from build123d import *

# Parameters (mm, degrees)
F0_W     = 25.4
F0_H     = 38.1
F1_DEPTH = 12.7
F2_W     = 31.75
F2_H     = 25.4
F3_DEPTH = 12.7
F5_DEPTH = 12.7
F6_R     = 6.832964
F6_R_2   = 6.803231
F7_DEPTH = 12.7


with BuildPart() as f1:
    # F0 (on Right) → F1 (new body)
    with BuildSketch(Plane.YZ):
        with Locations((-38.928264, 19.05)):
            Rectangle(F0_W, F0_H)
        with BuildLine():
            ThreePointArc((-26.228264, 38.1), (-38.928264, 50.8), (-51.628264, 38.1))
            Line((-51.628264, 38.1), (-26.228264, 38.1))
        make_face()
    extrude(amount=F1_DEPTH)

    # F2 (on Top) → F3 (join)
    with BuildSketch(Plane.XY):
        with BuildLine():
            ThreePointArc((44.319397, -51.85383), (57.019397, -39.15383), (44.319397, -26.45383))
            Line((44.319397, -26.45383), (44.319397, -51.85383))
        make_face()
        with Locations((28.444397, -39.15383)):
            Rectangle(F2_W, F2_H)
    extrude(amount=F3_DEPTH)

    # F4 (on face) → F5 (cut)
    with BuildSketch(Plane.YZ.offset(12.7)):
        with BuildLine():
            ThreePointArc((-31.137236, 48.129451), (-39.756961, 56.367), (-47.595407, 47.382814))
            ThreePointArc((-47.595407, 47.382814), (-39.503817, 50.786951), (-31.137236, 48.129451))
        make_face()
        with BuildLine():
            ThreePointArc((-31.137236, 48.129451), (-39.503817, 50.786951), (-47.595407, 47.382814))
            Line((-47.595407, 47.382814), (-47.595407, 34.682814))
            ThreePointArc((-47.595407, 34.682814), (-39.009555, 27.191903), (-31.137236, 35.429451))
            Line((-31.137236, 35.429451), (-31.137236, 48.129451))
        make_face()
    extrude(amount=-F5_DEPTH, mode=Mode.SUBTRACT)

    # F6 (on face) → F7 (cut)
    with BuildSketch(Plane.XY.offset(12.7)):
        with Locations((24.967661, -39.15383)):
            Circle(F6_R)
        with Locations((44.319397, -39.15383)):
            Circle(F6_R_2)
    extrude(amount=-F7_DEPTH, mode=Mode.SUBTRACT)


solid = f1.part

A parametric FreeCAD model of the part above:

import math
import FreeCAD as App
import Part
import Sketcher
from FreeCAD import Vector
Q = App.Units.Quantity

doc = App.newDocument("Part")
body = doc.addObject("PartDesign::Body", "Body")

# Sketch on YZ plane
sketch1 = doc.addObject("Sketcher::SketchObject", "Sketch")
body.addObject(sketch1)
sketch1.AttachmentSupport = (doc.YZ_Plane, [""])
sketch1.MapMode = "FlatFace"
sketch1.addGeometry([
    Part.LineSegment(Vector(-52, 38, 0), Vector(-52, 0, 0)),
    Part.LineSegment(Vector(-52, 0, 0), Vector(-26, 0, 0)),
    Part.LineSegment(Vector(-26, 0, 0), Vector(-26, 38, 0)),
    Part.ArcOfCircle(Part.Circle(Vector(-39, 38, 0), Vector(0, 0, 1), 13), math.radians(0), math.radians(180)),
], False)
sketch1.addConstraint([
    Sketcher.Constraint("Coincident", 0, 2, 1, 1),
    Sketcher.Constraint("Coincident", 1, 2, 2, 1),
    Sketcher.Constraint("Tangent", 2, 2, 3, 1),
    Sketcher.Constraint("Tangent", 3, 2, 0, 1),
    Sketcher.Constraint("Vertical", 0),
    Sketcher.Constraint("Horizontal", 1),
    Sketcher.Constraint("Vertical", 2),
    Sketcher.Constraint("PointOnObject", 0, 2, -1),
    Sketcher.Constraint("Radius", 3, Q("0.5 in")),
    Sketcher.Constraint("DistanceY", 0, 2, 0, 1, Q("1.5 in")),
    Sketcher.Constraint("DistanceX", 3, 3, -1, 1, 38.928264),
])
pad1 = doc.addObject("PartDesign::Pad", "Pad")
body.addObject(pad1)
pad1.Profile = sketch1
pad1.Length = Q("0.5 in")

# Sketch on XY plane
sketch2 = doc.addObject("Sketcher::SketchObject", "Sketch001")
body.addObject(sketch2)
sketch2.AttachmentSupport = (doc.XY_Plane, [""])
sketch2.MapMode = "FlatFace"
sketch2.addGeometry([
    Part.ArcOfCircle(Part.Circle(Vector(44, -39, 0), Vector(0, 0, 1), 13), math.radians(-90), math.radians(90)),
    Part.LineSegment(Vector(44, -26, 0), Vector(13, -26, 0)),
    Part.LineSegment(Vector(13, -26, 0), Vector(13, -52, 0)),
    Part.LineSegment(Vector(13, -52, 0), Vector(44, -52, 0)),
], False)
sketch2.addConstraint([
    Sketcher.Constraint("Tangent", 0, 2, 1, 1),
    Sketcher.Constraint("Coincident", 1, 2, 2, 1),
    Sketcher.Constraint("Coincident", 2, 2, 3, 1),
    Sketcher.Constraint("Tangent", 3, 2, 0, 1),
    Sketcher.Constraint("Horizontal", 1),
    Sketcher.Constraint("Vertical", 2),
    Sketcher.Constraint("Horizontal", 3),
    Sketcher.Constraint("Radius", 0, Q("0.5 in")),
    Sketcher.Constraint("DistanceX", 1, 2, 1, 1, Q("1.25 in")),
    Sketcher.Constraint("DistanceY", 0, 3, -1, 1, 39.15383),
    Sketcher.Constraint("DistanceX", -1, 1, 0, 3, 44.319397),
])
pad2 = doc.addObject("PartDesign::Pad", "Pad001")
body.addObject(pad2)
pad2.Profile = sketch2
pad2.Length = Q("0.5 in")

# Sketch on YZ plane
sketch3 = doc.addObject("Sketcher::SketchObject", "Sketch002")
body.addObject(sketch3)
sketch3.AttachmentSupport = (doc.YZ_Plane, [""])
sketch3.MapMode = "FlatFace"
sketch3.AttachmentOffset = App.Placement(Vector(0, 0, 0.5 * 25.4), App.Rotation())
sketch3.addGeometry([
    Part.ArcOfCircle(Part.Circle(Vector(-39, 48, 0), Vector(0, 0, 1), 8), math.radians(0), math.radians(185)),
    Part.LineSegment(Vector(-48, 47, 0), Vector(-48, 35, 0)),
    Part.ArcOfCircle(Part.Circle(Vector(-39, 35, 0), Vector(0, 0, 1), 8), math.radians(-175), math.radians(0)),
    Part.LineSegment(Vector(-31, 35, 0), Vector(-31, 48, 0)),
], False)
sketch3.addConstraint([
    Sketcher.Constraint("Coincident", 0, 2, 1, 1),
    Sketcher.Constraint("Coincident", 1, 2, 2, 1),
    Sketcher.Constraint("Tangent", 2, 2, 3, 1),
    Sketcher.Constraint("Tangent", 3, 2, 0, 1),
    Sketcher.Constraint("Vertical", 1),
    Sketcher.Constraint("Vertical", 3),
    Sketcher.Constraint("Equal", 0, 2),
    Sketcher.Constraint("DistanceY", 1, 2, 1, 1, Q("0.5 in")),
    Sketcher.Constraint("Radius", 0, 8.246021),
    Sketcher.Constraint("DistanceY", -1, 1, 0, 3, 48.129451),
    Sketcher.Constraint("DistanceX", 0, 2, 0, 3, 8.21215),
    Sketcher.Constraint("DistanceX", 0, 3, -1, 1, 39.383257),
])
pocket1 = doc.addObject("PartDesign::Pocket", "Pocket")
body.addObject(pocket1)
pocket1.Profile = sketch3
pocket1.Length = Q("0.5 in")

# Sketch on XY plane
sketch4 = doc.addObject("Sketcher::SketchObject", "Sketch003")
body.addObject(sketch4)
sketch4.AttachmentSupport = (doc.XY_Plane, [""])
sketch4.MapMode = "FlatFace"
sketch4.AttachmentOffset = App.Placement(Vector(0, 0, 0.5 * 25.4), App.Rotation())
sketch4.addGeometry([
    Part.Circle(Vector(25, -39, 0), Vector(0, 0, 1), 7),
    Part.Circle(Vector(44, -39, 0), Vector(0, 0, 1), 7),
], False)
sketch4.addConstraint([
    Sketcher.Constraint("Horizontal", 0, 3, 1, 3),
    Sketcher.Constraint("Diameter", 0, 13.665928),
    Sketcher.Constraint("Diameter", 1, 13.606462),
    Sketcher.Constraint("DistanceX", -1, 1, 0, 3, 24.967661),
    Sketcher.Constraint("DistanceY", 0, 3, -1, 1, 39.15383),
    Sketcher.Constraint("DistanceX", -1, 1, 1, 3, 44.319397),
])
pocket2 = doc.addObject("PartDesign::Pocket", "Pocket001")
body.addObject(pocket2)
pocket2.Profile = sketch4
pocket2.Length = Q("0.5 in")

doc.recompute()
